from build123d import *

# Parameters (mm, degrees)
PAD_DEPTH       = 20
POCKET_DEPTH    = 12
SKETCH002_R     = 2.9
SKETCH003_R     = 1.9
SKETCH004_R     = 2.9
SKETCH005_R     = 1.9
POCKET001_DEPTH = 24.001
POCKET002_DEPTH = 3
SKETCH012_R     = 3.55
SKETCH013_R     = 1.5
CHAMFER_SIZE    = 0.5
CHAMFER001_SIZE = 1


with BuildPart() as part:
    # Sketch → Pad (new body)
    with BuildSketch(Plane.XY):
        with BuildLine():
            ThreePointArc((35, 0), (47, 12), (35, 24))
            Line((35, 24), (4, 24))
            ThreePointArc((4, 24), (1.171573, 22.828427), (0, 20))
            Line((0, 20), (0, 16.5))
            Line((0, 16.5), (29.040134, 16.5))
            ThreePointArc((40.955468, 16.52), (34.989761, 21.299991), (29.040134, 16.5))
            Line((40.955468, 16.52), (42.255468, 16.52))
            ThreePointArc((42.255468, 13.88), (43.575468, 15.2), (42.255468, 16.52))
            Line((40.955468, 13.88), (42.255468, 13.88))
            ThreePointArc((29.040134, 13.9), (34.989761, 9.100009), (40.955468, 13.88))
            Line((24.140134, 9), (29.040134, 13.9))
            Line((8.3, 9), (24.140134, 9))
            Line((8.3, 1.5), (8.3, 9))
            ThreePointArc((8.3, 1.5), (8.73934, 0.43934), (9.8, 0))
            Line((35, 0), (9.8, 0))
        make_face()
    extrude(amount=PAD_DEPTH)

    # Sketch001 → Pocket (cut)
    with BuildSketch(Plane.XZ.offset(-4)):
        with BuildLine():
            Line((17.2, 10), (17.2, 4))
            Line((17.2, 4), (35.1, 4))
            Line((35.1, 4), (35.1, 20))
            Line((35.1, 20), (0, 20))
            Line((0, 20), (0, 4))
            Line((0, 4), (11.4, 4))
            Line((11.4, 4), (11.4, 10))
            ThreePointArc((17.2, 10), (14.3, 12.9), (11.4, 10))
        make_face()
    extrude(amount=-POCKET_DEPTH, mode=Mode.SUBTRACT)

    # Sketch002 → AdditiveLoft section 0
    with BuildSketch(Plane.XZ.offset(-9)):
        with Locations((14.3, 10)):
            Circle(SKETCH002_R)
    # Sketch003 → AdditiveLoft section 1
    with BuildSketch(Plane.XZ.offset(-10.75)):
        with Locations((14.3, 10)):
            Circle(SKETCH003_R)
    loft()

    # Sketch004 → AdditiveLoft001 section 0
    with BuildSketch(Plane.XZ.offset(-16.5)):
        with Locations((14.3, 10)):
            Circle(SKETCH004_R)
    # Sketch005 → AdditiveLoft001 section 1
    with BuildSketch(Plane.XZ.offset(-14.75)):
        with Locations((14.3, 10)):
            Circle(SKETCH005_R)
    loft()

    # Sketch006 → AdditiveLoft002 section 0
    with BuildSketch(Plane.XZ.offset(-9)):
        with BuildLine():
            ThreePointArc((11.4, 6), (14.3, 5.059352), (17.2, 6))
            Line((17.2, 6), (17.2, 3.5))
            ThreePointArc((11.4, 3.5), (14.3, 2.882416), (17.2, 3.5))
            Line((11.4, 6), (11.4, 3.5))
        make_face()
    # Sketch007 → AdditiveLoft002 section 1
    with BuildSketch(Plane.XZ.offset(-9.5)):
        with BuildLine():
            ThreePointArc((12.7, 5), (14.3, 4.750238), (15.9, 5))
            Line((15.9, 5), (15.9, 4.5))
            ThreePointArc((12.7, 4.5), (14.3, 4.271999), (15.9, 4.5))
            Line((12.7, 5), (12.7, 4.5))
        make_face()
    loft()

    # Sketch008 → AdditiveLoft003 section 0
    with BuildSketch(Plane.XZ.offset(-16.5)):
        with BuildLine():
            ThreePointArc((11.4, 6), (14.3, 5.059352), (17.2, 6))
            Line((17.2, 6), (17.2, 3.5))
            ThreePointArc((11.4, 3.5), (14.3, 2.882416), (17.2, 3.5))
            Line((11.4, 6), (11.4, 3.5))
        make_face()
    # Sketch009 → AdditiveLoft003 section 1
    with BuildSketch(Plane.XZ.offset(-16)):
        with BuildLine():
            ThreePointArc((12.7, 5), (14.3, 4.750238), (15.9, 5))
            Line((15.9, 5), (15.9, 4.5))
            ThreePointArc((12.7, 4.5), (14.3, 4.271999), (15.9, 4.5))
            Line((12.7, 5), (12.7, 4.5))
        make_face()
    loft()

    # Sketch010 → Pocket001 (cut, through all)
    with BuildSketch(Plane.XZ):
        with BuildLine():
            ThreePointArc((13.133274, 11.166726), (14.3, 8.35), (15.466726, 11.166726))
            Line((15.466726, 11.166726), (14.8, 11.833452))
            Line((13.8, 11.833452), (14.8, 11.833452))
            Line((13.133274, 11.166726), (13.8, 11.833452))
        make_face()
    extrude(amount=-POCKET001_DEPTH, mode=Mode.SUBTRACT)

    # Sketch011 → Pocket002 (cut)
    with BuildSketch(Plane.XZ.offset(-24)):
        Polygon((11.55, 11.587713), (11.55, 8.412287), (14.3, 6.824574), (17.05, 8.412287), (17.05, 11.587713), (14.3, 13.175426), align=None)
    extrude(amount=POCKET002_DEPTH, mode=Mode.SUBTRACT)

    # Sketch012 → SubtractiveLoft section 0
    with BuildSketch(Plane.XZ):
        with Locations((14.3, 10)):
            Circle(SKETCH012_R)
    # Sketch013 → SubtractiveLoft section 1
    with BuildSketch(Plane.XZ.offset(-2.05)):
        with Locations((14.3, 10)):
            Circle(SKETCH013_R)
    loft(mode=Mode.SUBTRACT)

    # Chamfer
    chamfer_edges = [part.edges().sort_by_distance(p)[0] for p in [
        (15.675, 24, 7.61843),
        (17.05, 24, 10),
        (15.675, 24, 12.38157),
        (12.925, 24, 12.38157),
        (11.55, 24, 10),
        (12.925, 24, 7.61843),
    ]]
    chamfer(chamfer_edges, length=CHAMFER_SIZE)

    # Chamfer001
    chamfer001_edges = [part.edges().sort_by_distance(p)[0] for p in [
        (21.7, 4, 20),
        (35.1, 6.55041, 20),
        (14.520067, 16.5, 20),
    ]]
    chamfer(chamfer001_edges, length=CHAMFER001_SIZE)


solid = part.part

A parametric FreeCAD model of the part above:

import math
import FreeCAD as App
import Part
import Sketcher

V = App.Vector
Q = App.Units.Quantity


def edges_at(feature, points):
    """Names of the edges that pass closest to the given points."""
    edges = feature.Shape.Edges
    near = lambda p: min(range(len(edges)), key=lambda i: edges[i].distToShape(Part.Vertex(*p))[0])
    return sorted({f"Edge{near(p) + 1}" for p in points})

doc = App.newDocument("Part")
body = doc.addObject("PartDesign::Body", "Body")

# Sketch on XY plane
sketch1 = body.newObject("Sketcher::SketchObject", "Sketch")
sketch1.AttachmentSupport = (doc.getObject("XY_Plane"), [""])
sketch1.MapMode = "FlatFace"
sketch1.addGeometry([
    Part.ArcOfCircle(Part.Circle(V(35, 12, 0), V(0, 0, 1), 12), math.radians(-90), math.radians(90)),  # 0
    Part.LineSegment(V(35, 24, 0), V(4, 24, 0)),  # 1
    Part.ArcOfCircle(Part.Circle(V(4, 20, 0), V(0, 0, 1), 4), math.radians(90), math.radians(180)),  # 2
    Part.LineSegment(V(0, 20, 0), V(0, 16.5, 0)),  # 3
    Part.LineSegment(V(0, 16.5, 0), V(29, 16.5, 0)),  # 4
    Part.ArcOfCircle(Part.Circle(V(35, 15.2, 0), V(0, 0, 1), 6.1), math.radians(12), math.radians(168)),  # 5
    Part.LineSegment(V(41, 16.5, 0), V(42.3, 16.5, 0)),  # 6
    Part.ArcOfCircle(Part.Circle(V(42.3, 15.2, 0), V(0, 0, 1), 1.3), math.radians(-90), math.radians(90)),  # 7
    Part.LineSegment(V(42.3, 13.9, 0), V(41, 13.9, 0)),  # 8
    Part.ArcOfCircle(Part.Circle(V(35, 15.2, 0), V(0, 0, 1), 6.1), math.radians(-168), math.radians(-12)),  # 9
    Part.LineSegment(V(29, 13.9, 0), V(24.1, 9, 0)),  # 10
    Part.LineSegment(V(24.1, 9, 0), V(8.3, 9, 0)),  # 11
    Part.LineSegment(V(8.3, 9, 0), V(8.3, 1.5, 0)),  # 12
    Part.ArcOfCircle(Part.Circle(V(9.8, 1.5, 0), V(0, 0, 1), 1.5), math.radians(-180), math.radians(-90)),  # 13
    Part.LineSegment(V(9.8, 0, 0), V(35, 0, 0)),  # 14
], False)
sketch1.addConstraint([
    Sketcher.Constraint("Tangent", 0, 2, 1, 1),
    Sketcher.Constraint("Tangent", 1, 2, 2, 1),
    Sketcher.Constraint("Tangent", 2, 2, 3, 1),
    Sketcher.Constraint("Coincident", 3, 2, 4, 1),
    Sketcher.Constraint("Coincident", 4, 2, 5, 2),
    Sketcher.Constraint("Coincident", 5, 1, 6, 1),
    Sketcher.Constraint("Tangent", 6, 2, 7, 2),
    Sketcher.Constraint("Tangent", 7, 1, 8, 1),
    Sketcher.Constraint("Coincident", 8, 2, 9, 2),
    Sketcher.Constraint("Coincident", 9, 1, 10, 1),
    Sketcher.Constraint("Coincident", 10, 2, 11, 1),
    Sketcher.Constraint("Coincident", 11, 2, 12, 1),
    Sketcher.Constraint("Tangent", 12, 2, 13, 1),
    Sketcher.Constraint("Tangent", 13, 2, 14, 1),
    Sketcher.Constraint("Tangent", 14, 2, 0, 1),
    Sketcher.Constraint("Horizontal", 1),
    Sketcher.Constraint("Vertical", 3),
    Sketcher.Constraint("Horizontal", 4),
    Sketcher.Constraint("Horizontal", 6),
    Sketcher.Constraint("Horizontal", 8),
    Sketcher.Constraint("Horizontal", 11),
    Sketcher.Constraint("Vertical", 12),
    Sketcher.Constraint("Horizontal", 14),
    Sketcher.Constraint("Coincident", 9, 3, 5, 3),
    Sketcher.Constraint("Equal", 5, 9),
    Sketcher.Constraint("PointOnObject", 2, 2, -2),
    Sketcher.Constraint("PointOnObject", 13, 2, -1),
    Sketcher.Constraint("Horizontal", 5, 3, 7, 3),
    Sketcher.Constraint("Vertical", 0, 3, 5, 3),
    Sketcher.Constraint("Vertical", 4, 2, 9, 1),
    Sketcher.Constraint("Radius", 0, Q("12 mm")),
    Sketcher.Constraint("Radius", 2, Q("4 mm")),
    Sketcher.Constraint("Radius", 5, Q("6.1 mm")),
    Sketcher.Constraint("Radius", 13, Q("1.500001 mm")),
    Sketcher.Constraint("DistanceX", 1, 2, 1, 1, Q("31 mm")),
    Sketcher.Constraint("Angle", 10, Q("-135 deg")),
    Sketcher.Constraint("Radius", 7, Q("1.32 mm")),
    Sketcher.Constraint("DistanceX", 6, 1, 6, 2, Q("1.3 mm")),
    Sketcher.Constraint("DistanceX", 14, 1, 14, 2, Q("25.2 mm")),
    Sketcher.Constraint("DistanceY", 3, 2, 3, 1, Q("3.5 mm")),
    Sketcher.Constraint("DistanceY", 12, 2, 12, 1, Q("7.5 mm")),
    Sketcher.Constraint("DistanceY", -1, 1, 5, 3, Q("15.199999 mm")),
])
pad1 = body.newObject("PartDesign::Pad", "Pad")
pad1.Profile = sketch1
pad1.Length = 20

# Sketch on XZ plane
sketch2 = body.newObject("Sketcher::SketchObject", "Sketch001")
sketch2.AttachmentSupport = (doc.getObject("XZ_Plane"), [""])
sketch2.MapMode = "FlatFace"
sketch2.AttachmentOffset = App.Placement(V(0, 0, -4), App.Rotation())
sketch2.addGeometry([
    Part.LineSegment(V(17.2, 10, 0), V(17.2, 4, 0)),  # 0
    Part.LineSegment(V(17.2, 4, 0), V(35.1, 4, 0)),  # 1
    Part.LineSegment(V(35.1, 4, 0), V(35.1, 20, 0)),  # 2
    Part.LineSegment(V(35.1, 20, 0), V(0, 20, 0)),  # 3
    Part.LineSegment(V(0, 20, 0), V(0, 4, 0)),  # 4
    Part.LineSegment(V(0, 4, 0), V(11.4, 4, 0)),  # 5
    Part.LineSegment(V(11.4, 4, 0), V(11.4, 10, 0)),  # 6
    Part.ArcOfCircle(Part.Circle(V(14.3, 10, 0), V(0, 0, 1), 2.9), math.radians(0), math.radians(180)),  # 7
], False)
sketch2.addConstraint([
    Sketcher.Constraint("Coincident", 0, 2, 1, 1),
    Sketcher.Constraint("Coincident", 1, 2, 2, 1),
    Sketcher.Constraint("Coincident", 2, 2, 3, 1),
    Sketcher.Constraint("Coincident", 3, 2, 4, 1),
    Sketcher.Constraint("Coincident", 4, 2, 5, 1),
    Sketcher.Constraint("Coincident", 5, 2, 6, 1),
    Sketcher.Constraint("Tangent", 6, 2, 7, 2),
    Sketcher.Constraint("Tangent", 7, 1, 0, 1),
    Sketcher.Constraint("Vertical", 0),
    Sketcher.Constraint("Horizontal", 1),
    Sketcher.Constraint("Vertical", 2),
    Sketcher.Constraint("Horizontal", 3),
    Sketcher.Constraint("Vertical", 4),
    Sketcher.Constraint("Horizontal", 5),
    Sketcher.Constraint("Vertical", 6),
    Sketcher.Constraint("PointOnObject", 3, 2, -2),
    Sketcher.Constraint("Horizontal", 1, 2, 4, 2),
    Sketcher.Constraint("Radius", 7, Q("2.9 mm")),
    Sketcher.Constraint("DistanceY", 0, 2, 0, 1, Q("6 mm")),
    Sketcher.Constraint("DistanceY", 2, 1, 2, 2, Q("16 mm")),
    Sketcher.Constraint("DistanceX", 1, 1, 1, 2, Q("17.9 mm")),
    Sketcher.Constraint("DistanceX", 3, 2, 3, 1, Q("35.1 mm")),
    Sketcher.Constraint("DistanceY", -1, 1, 7, 3, Q("10 mm")),
])
pocket1 = body.newObject("PartDesign::Pocket", "Pocket")
pocket1.Profile = sketch2
pocket1.Length = 12

# Sketch on XZ plane
sketch3 = body.newObject("Sketcher::SketchObject", "Sketch002")
sketch3.AttachmentSupport = (doc.getObject("XZ_Plane"), [""])
sketch3.MapMode = "FlatFace"
sketch3.AttachmentOffset = App.Placement(V(0, 0, -9), App.Rotation())
sketch3.addGeometry(Part.Circle(V(14.3, 10, 0), V(0, 0, 1), 2.9), False)
sketch3.addConstraint([
    Sketcher.Constraint("Diameter", 0, Q("5.8 mm")),
    Sketcher.Constraint("DistanceY", -1, 1, 0, 3, Q("10 mm")),
    Sketcher.Constraint("DistanceX", -1, 1, 0, 3, Q("14.3 mm")),
])

# Sketch on XZ plane
sketch4 = body.newObject("Sketcher::SketchObject", "Sketch003")
sketch4.AttachmentSupport = (doc.getObject("XZ_Plane"), [""])
sketch4.MapMode = "FlatFace"
sketch4.AttachmentOffset = App.Placement(V(0, 0, -10.75), App.Rotation())
sketch4.addGeometry(Part.Circle(V(14.3, 10, 0), V(0, 0, 1), 1.9), False)
sketch4.addConstraint([
    Sketcher.Constraint("Diameter", 0, Q("3.8 mm")),
    Sketcher.Constraint("DistanceY", -1, 1, 0, 3, Q("10 mm")),
    Sketcher.Constraint("DistanceX", -1, 1, 0, 3, Q("14.3 mm")),
])

additiveloft = body.newObject("PartDesign::AdditiveLoft", "AdditiveLoft")
additiveloft.Profile = sketch3
additiveloft.Sections = [sketch4]

# Sketch on XZ plane
sketch5 = body.newObject("Sketcher::SketchObject", "Sketch004")
sketch5.AttachmentSupport = (doc.getObject("XZ_Plane"), [""])
sketch5.MapMode = "FlatFace"
sketch5.AttachmentOffset = App.Placement(V(0, 0, -16.5), App.Rotation())
sketch5.addGeometry(Part.Circle(V(14.3, 10, 0), V(0, 0, 1), 2.9), False)
sketch5.addConstraint([
    Sketcher.Constraint("Diameter", 0, Q("5.8 mm")),
    Sketcher.Constraint("DistanceY", -1, 1, 0, 3, Q("10 mm")),
    Sketcher.Constraint("DistanceX", -1, 1, 0, 3, Q("14.3 mm")),
])

# Sketch on XZ plane
sketch6 = body.newObject("Sketcher::SketchObject", "Sketch005")
sketch6.AttachmentSupport = (doc.getObject("XZ_Plane"), [""])
sketch6.MapMode = "FlatFace"
sketch6.AttachmentOffset = App.Placement(V(0, 0, -14.75), App.Rotation())
sketch6.addGeometry(Part.Circle(V(14.3, 10, 0), V(0, 0, 1), 1.9), False)
sketch6.addConstraint([
    Sketcher.Constraint("Diameter", 0, Q("3.8 mm")),
    Sketcher.Constraint("DistanceY", -1, 1, 0, 3, Q("10 mm")),
    Sketcher.Constraint("DistanceX", -1, 1, 0, 3, Q("14.3 mm")),
])

additiveloft2 = body.newObject("PartDesign::AdditiveLoft", "AdditiveLoft001")
additiveloft2.Profile = sketch5
additiveloft2.Sections = [sketch6]

# Sketch on XZ plane
sketch7 = body.newObject("Sketcher::SketchObject", "Sketch006")
sketch7.AttachmentSupport = (doc.getObject("XZ_Plane"), [""])
sketch7.MapMode = "FlatFace"
sketch7.AttachmentOffset = App.Placement(V(0, 0, -9), App.Rotation())
sketch7.addGeometry([
    Part.ArcOfCircle(Part.Circle(V(14.3, 10, 0), V(0, 0, 1), 4.9), math.radians(-126), math.radians(-54)),
    Part.LineSegment(V(11.4, 6, 0), V(11.4, 3.5, 0)),
    Part.ArcOfCircle(Part.Circle(V(14.3, 10, 0), V(0, 0, 1), 7.1), math.radians(-114), math.radians(-66)),
    Part.LineSegment(V(17.2, 3.5, 0), V(17.2, 6, 0)),
], False)
sketch7.addConstraint([
    Sketcher.Constraint("Coincident", 0, 1, 1, 1),
    Sketcher.Constraint("Coincident", 1, 2, 2, 1),
    Sketcher.Constraint("Coincident", 2, 2, 3, 1),
    Sketcher.Constraint("Coincident", 3, 2, 0, 2),
    Sketcher.Constraint("Vertical", 1),
    Sketcher.Constraint("Vertical", 3),
    Sketcher.Constraint("Coincident", 2, 3, 0, 3),
    Sketcher.Constraint("Horizontal", 1, 2, 2, 2),
    Sketcher.Constraint("DistanceY", 1, 2, 1, 1, Q("2.5 mm")),
    Sketcher.Constraint("DistanceY", -1, 1, 0, 3, Q("9.999999 mm")),
    Sketcher.Constraint("DistanceY", -1, 1, 0, 1, Q("6 mm")),
    Sketcher.Constraint("DistanceX", -1, 1, 0, 3, Q("14.3 mm")),
    Sketcher.Constraint("DistanceX", -1, 1, 0, 1, Q("11.4 mm")),
])

# Sketch on XZ plane
sketch8 = body.newObject("Sketcher::SketchObject", "Sketch007")
sketch8.AttachmentSupport = (doc.getObject("XZ_Plane"), [""])
sketch8.MapMode = "FlatFace"
sketch8.AttachmentOffset = App.Placement(V(0, 0, -9.5), App.Rotation())
sketch8.addGeometry([
    Part.ArcOfCircle(Part.Circle(V(14.3, 10, 0), V(0, 0, 1), 5.2), math.radians(-108), math.radians(-72)),
    Part.LineSegment(V(12.7, 5, 0), V(12.7, 4.5, 0)),
    Part.ArcOfCircle(Part.Circle(V(14.3, 10, 0), V(0, 0, 1), 5.7), math.radians(-106), math.radians(-74)),
    Part.LineSegment(V(15.9, 4.5, 0), V(15.9, 5, 0)),
], False)
sketch8.addConstraint([
    Sketcher.Constraint("Coincident", 0, 1, 1, 1),
    Sketcher.Constraint("Coincident", 1, 2, 2, 1),
    Sketcher.Constraint("Coincident", 2, 2, 3, 1),
    Sketcher.Constraint("Coincident", 3, 2, 0, 2),
    Sketcher.Constraint("Vertical", 1),
    Sketcher.Constraint("Vertical", 3),
    Sketcher.Constraint("Horizontal", 1, 2, 2, 2),
    Sketcher.Constraint("Horizontal", 0, 1, 3, 2),
    Sketcher.Constraint("DistanceY", 1, 2, 1, 1, Q("0.5 mm")),
    Sketcher.Constraint("DistanceY", -1, 1, 0, 1, Q("5 mm")),
    Sketcher.Constraint("DistanceX", -1, 1, 0, 3, Q("14.3 mm")),
    Sketcher.Constraint("DistanceX", -1, 1, 0, 1, Q("12.7 mm")),
    Sketcher.Constraint("Radius", 0, Q("5.24976 mm")),
    Sketcher.Constraint("Radius", 2, Q("5.728011 mm")),
])

additiveloft3 = body.newObject("PartDesign::AdditiveLoft", "AdditiveLoft002")
additiveloft3.Profile = sketch7
additiveloft3.Sections = [sketch8]

# Sketch on XZ plane
sketch9 = body.newObject("Sketcher::SketchObject", "Sketch008")
sketch9.AttachmentSupport = (doc.getObject("XZ_Plane"), [""])
sketch9.MapMode = "FlatFace"
sketch9.AttachmentOffset = App.Placement(V(0, 0, -16.5), App.Rotation())
sketch9.addGeometry([
    Part.ArcOfCircle(Part.Circle(V(14.3, 10, 0), V(0, 0, 1), 4.9), math.radians(-126), math.radians(-54)),
    Part.LineSegment(V(11.4, 6, 0), V(11.4, 3.5, 0)),
    Part.ArcOfCircle(Part.Circle(V(14.3, 10, 0), V(0, 0, 1), 7.1), math.radians(-114), math.radians(-66)),
    Part.LineSegment(V(17.2, 3.5, 0), V(17.2, 6, 0)),
], False)
sketch9.addConstraint([
    Sketcher.Constraint("Coincident", 0, 1, 1, 1),
    Sketcher.Constraint("Coincident", 1, 2, 2, 1),
    Sketcher.Constraint("Coincident", 2, 2, 3, 1),
    Sketcher.Constraint("Coincident", 3, 2, 0, 2),
    Sketcher.Constraint("Vertical", 1),
    Sketcher.Constraint("Vertical", 3),
    Sketcher.Constraint("Coincident", 2, 3, 0, 3),
    Sketcher.Constraint("Horizontal", 1, 2, 2, 2),
    Sketcher.Constraint("DistanceY", 1, 2, 1, 1, Q("2.5 mm")),
    Sketcher.Constraint("DistanceY", -1, 1, 0, 3, Q("9.999999 mm")),
    Sketcher.Constraint("DistanceY", -1, 1, 0, 1, Q("6 mm")),
    Sketcher.Constraint("DistanceX", -1, 1, 0, 3, Q("14.3 mm")),
    Sketcher.Constraint("DistanceX", -1, 1, 0, 1, Q("11.4 mm")),
])

# Sketch on XZ plane
sketch10 = body.newObject("Sketcher::SketchObject", "Sketch009")
sketch10.AttachmentSupport = (doc.getObject("XZ_Plane"), [""])
sketch10.MapMode = "FlatFace"
sketch10.AttachmentOffset = App.Placement(V(0, 0, -16), App.Rotation())
sketch10.addGeometry([
    Part.ArcOfCircle(Part.Circle(V(14.3, 10, 0), V(0, 0, 1), 5.2), math.radians(-108), math.radians(-72)),
    Part.LineSegment(V(12.7, 5, 0), V(12.7, 4.5, 0)),
    Part.ArcOfCircle(Part.Circle(V(14.3, 10, 0), V(0, 0, 1), 5.7), math.radians(-106), math.radians(-74)),
    Part.LineSegment(V(15.9, 4.5, 0), V(15.9, 5, 0)),
], False)
sketch10.addConstraint([
    Sketcher.Constraint("Coincident", 0, 1, 1, 1),
    Sketcher.Constraint("Coincident", 1, 2, 2, 1),
    Sketcher.Constraint("Coincident", 2, 2, 3, 1),
    Sketcher.Constraint("Coincident", 3, 2, 0, 2),
    Sketcher.Constraint("Vertical", 1),
    Sketcher.Constraint("Vertical", 3),
    Sketcher.Constraint("Horizontal", 1, 2, 2, 2),
    Sketcher.Constraint("Horizontal", 0, 1, 3, 2),
    Sketcher.Constraint("DistanceY", 1, 2, 1, 1, Q("0.5 mm")),
    Sketcher.Constraint("DistanceY", -1, 1, 0, 1, Q("5 mm")),
    Sketcher.Constraint("DistanceX", -1, 1, 0, 3, Q("14.3 mm")),
    Sketcher.Constraint("DistanceX", -1, 1, 0, 1, Q("12.7 mm")),
    Sketcher.Constraint("Radius", 0, Q("5.24976 mm")),
    Sketcher.Constraint("Radius", 2, Q("5.728011 mm")),
])

additiveloft4 = body.newObject("PartDesign::AdditiveLoft", "AdditiveLoft003")
additiveloft4.Profile = sketch9
additiveloft4.Sections = [sketch10]

# Sketch on XZ plane
sketch11 = body.newObject("Sketcher::SketchObject", "Sketch010")
sketch11.AttachmentSupport = (doc.getObject("XZ_Plane"), [""])
sketch11.MapMode = "FlatFace"
sketch11.addGeometry([
    Part.ArcOfCircle(Part.Circle(V(14.3, 10, 0), V(0, 0, 1), 1.6), math.radians(135), math.radians(405)),
    Part.LineSegment(V(15.5, 11.2, 0), V(14.8, 11.8, 0)),
    Part.LineSegment(V(14.8, 11.8, 0), V(13.8, 11.8, 0)),
    Part.LineSegment(V(13.8, 11.8, 0), V(13.1, 11.2, 0)),
], False)
sketch11.addConstraint([
    Sketcher.Constraint("Tangent", 0, 2, 1, 1),
    Sketcher.Constraint("Coincident", 1, 2, 2, 1),
    Sketcher.Constraint("Coincident", 2, 2, 3, 1),
    Sketcher.Constraint("Tangent", 3, 2, 0, 1),
    Sketcher.Constraint("Horizontal", 2),
    Sketcher.Constraint("Perpendicular", 1, 3),
    Sketcher.Constraint("Horizontal", 0, 2, 3, 2),
    Sketcher.Constraint("DistanceX", 2, 2, 2, 1, Q("1 mm")),
    Sketcher.Constraint("Radius", 0, Q("1.65 mm")),
    Sketcher.Constraint("DistanceY", -1, 1, 0, 3, Q("10 mm")),
    Sketcher.Constraint("DistanceX", -1, 1, 0, 3, Q("14.3 mm")),
])
pocket2 = body.newObject("PartDesign::Pocket", "Pocket001")
pocket2.Profile = sketch11
pocket2.Type = "ThroughAll"

# Sketch on XZ plane
sketch12 = body.newObject("Sketcher::SketchObject", "Sketch011")
sketch12.AttachmentSupport = (doc.getObject("XZ_Plane"), [""])
sketch12.MapMode = "FlatFace"
sketch12.AttachmentOffset = App.Placement(V(0, 0, -24), App.Rotation())
sketch12.addGeometry([
    Part.LineSegment(V(11.6, 11.6, 0), V(11.6, 8.4, 0)),  # 0
    Part.LineSegment(V(11.6, 8.4, 0), V(14.3, 6.8, 0)),  # 1
    Part.LineSegment(V(14.3, 6.8, 0), V(17.1, 8.4, 0)),  # 2
    Part.LineSegment(V(17.1, 8.4, 0), V(17.1, 11.6, 0)),  # 3
    Part.LineSegment(V(17.1, 11.6, 0), V(14.3, 13.2, 0)),  # 4
    Part.LineSegment(V(14.3, 13.2, 0), V(11.6, 11.6, 0)),  # 5
], False)
sketch12.addConstraint([
    Sketcher.Constraint("Coincident", 0, 2, 1, 1),
    Sketcher.Constraint("Coincident", 1, 2, 2, 1),
    Sketcher.Constraint("Coincident", 2, 2, 3, 1),
    Sketcher.Constraint("Coincident", 3, 2, 4, 1),
    Sketcher.Constraint("Coincident", 4, 2, 5, 1),
    Sketcher.Constraint("Coincident", 5, 2, 0, 1),
    Sketcher.Constraint("Vertical", 0),
    Sketcher.Constraint("Vertical", 3),
    Sketcher.Constraint("Parallel", 1, 4),
    Sketcher.Constraint("Parallel", 2, 5),
    Sketcher.Constraint("Horizontal", 0, 2, 2, 2),
    Sketcher.Constraint("Horizontal", 3, 2, 5, 2),
    Sketcher.Constraint("Vertical", 1, 2, 4, 2),
    Sketcher.Constraint("Angle", 1, Q("-29.999996 deg")),
    Sketcher.Constraint("DistanceX", -1, 1, 1, 2, Q("14.3 mm")),
    Sketcher.Constraint("DistanceX", 0, 2, 2, 2, Q("5.5 mm")),
    Sketcher.Constraint("DistanceY", 0, 2, 0, 1, Q("3.175426 mm")),
    Sketcher.Constraint("DistanceY", -1, 1, 0, 2, Q("8.412287 mm")),
])
pocket3 = body.newObject("PartDesign::Pocket", "Pocket002")
pocket3.Profile = sketch12
pocket3.Length = 3
pocket3.Reversed = True

# Sketch on XZ plane
sketch13 = body.newObject("Sketcher::SketchObject", "Sketch012")
sketch13.AttachmentSupport = (doc.getObject("XZ_Plane"), [""])
sketch13.MapMode = "FlatFace"
sketch13.addGeometry(Part.Circle(V(14.3, 10, 0), V(0, 0, 1), 3.5), False)
sketch13.addConstraint([
    Sketcher.Constraint("Diameter", 0, Q("7.1 mm")),
    Sketcher.Constraint("DistanceY", -1, 1, 0, 3, Q("10 mm")),
    Sketcher.Constraint("DistanceX", -1, 1, 0, 3, Q("14.3 mm")),
])

# Sketch on XZ plane
sketch14 = body.newObject("Sketcher::SketchObject", "Sketch013")
sketch14.AttachmentSupport = (doc.getObject("XZ_Plane"), [""])
sketch14.MapMode = "FlatFace"
sketch14.AttachmentOffset = App.Placement(V(0, 0, -2.05), App.Rotation())
sketch14.addGeometry(Part.Circle(V(14.3, 10, 0), V(0, 0, 1), 1.5), False)
sketch14.addConstraint([
    Sketcher.Constraint("Diameter", 0, Q("3 mm")),
    Sketcher.Constraint("DistanceY", -1, 1, 0, 3, Q("10 mm")),
    Sketcher.Constraint("DistanceX", -1, 1, 0, 3, Q("14.3 mm")),
])

subtractiveloft = body.newObject("PartDesign::SubtractiveLoft", "SubtractiveLoft")
subtractiveloft.Profile = sketch13
subtractiveloft.Sections = [sketch14]
doc.recompute()

chamfer = body.newObject("PartDesign::Chamfer", "Chamfer")
chamfer.Base = (subtractiveloft, edges_at(subtractiveloft, [
    (15.675, 24, 7.618),
    (17.05, 24, 10),
    (15.675, 24, 12.382),
    (12.925, 24, 12.382),
    (11.55, 24, 10),
    (12.925, 24, 7.618),
]))
chamfer.Size = 0.5
doc.recompute()

chamfer2 = body.newObject("PartDesign::Chamfer", "Chamfer001")
chamfer2.Base = (chamfer, edges_at(chamfer, [(21.7, 4, 20), (35.1, 6.55, 20), (14.52, 16.5, 20)]))
chamfer2.Size = 1

doc.recompute()
